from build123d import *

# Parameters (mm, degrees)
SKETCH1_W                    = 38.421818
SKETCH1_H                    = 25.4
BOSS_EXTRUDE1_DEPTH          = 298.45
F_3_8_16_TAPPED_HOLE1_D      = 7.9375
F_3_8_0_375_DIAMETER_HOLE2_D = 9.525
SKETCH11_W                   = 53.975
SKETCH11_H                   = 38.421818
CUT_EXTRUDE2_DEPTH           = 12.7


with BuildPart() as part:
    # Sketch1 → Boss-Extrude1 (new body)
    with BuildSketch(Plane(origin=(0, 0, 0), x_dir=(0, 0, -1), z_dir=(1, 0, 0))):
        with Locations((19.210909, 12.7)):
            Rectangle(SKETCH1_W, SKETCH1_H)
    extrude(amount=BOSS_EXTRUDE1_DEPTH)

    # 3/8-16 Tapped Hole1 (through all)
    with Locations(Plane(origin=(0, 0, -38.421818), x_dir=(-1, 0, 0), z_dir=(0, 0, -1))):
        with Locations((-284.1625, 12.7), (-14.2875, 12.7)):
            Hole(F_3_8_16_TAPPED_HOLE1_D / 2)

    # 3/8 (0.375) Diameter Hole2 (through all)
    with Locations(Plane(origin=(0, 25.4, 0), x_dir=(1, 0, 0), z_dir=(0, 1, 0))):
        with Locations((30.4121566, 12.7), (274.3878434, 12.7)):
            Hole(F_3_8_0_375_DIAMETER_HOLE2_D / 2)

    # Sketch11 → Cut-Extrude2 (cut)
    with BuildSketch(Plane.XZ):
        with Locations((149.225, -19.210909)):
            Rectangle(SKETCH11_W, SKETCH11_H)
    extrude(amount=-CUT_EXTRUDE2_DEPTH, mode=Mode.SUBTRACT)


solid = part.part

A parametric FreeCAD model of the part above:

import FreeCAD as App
import Part
import Sketcher

V = App.Vector
Q = App.Units.Quantity


def add_polygon(sketch, points):
    """Adds a closed chain of lines whose ends are joined by coincident constraints."""
    first, n = sketch.GeometryCount, len(points)
    for a, b in zip(points, points[1:] + points[:1]):
        sketch.addGeometry(Part.LineSegment(App.Vector(*a, 0), App.Vector(*b, 0)), False)
    for i in range(n):
        sketch.addConstraint(Sketcher.Constraint("Coincident", first + i, 2, first + (i + 1) % n, 1))

doc = App.newDocument("Part")
body = doc.addObject("PartDesign::Body", "Body")

# Sketch on YZ plane
sketch1 = body.newObject("Sketcher::SketchObject", "Sketch")
sketch1.AttachmentSupport = (doc.getObject("YZ_Plane"), [""])
sketch1.MapMode = "FlatFace"
add_polygon(sketch1, [(25, 0), (0, 0), (0, -38), (25, -38)])  # lines 0-3
sketch1.addConstraint([
    Sketcher.Constraint("Horizontal", 0),
    Sketcher.Constraint("Vertical", 1),
    Sketcher.Constraint("Horizontal", 2),
    Sketcher.Constraint("Vertical", 3),
    Sketcher.Constraint("Coincident", 0, 2, -1, 1),
    Sketcher.Constraint("DistanceX", 0, 2, 0, 1, Q("1 in")),
    Sketcher.Constraint("DistanceY", 1, 2, 1, 1, 38.421818),
])
pad1 = body.newObject("PartDesign::Pad", "Pad")
pad1.Profile = sketch1
pad1.Length = Q("11.75 in")

# Sketch on XY plane
sketch2 = body.newObject("Sketcher::SketchObject", "Sketch001")
sketch2.AttachmentSupport = (doc.getObject("XY_Plane"), [""])
sketch2.MapMode = "FlatFace"
sketch2.AttachmentOffset = App.Placement(V(0, 0, -38.421818), App.Rotation())
sketch2.addGeometry([
    Part.Circle(V(284.2, 12.7, 0), V(0, 0, 1), 4),
    Part.Circle(V(14.3, 12.7, 0), V(0, 0, 1), 4),
], False)
sketch2.addConstraint([
    Sketcher.Constraint("Equal", 0, 1),
    Sketcher.Constraint("Horizontal", 0, 3, 1, 3),
    Sketcher.Constraint("Diameter", 0, Q("0.3125 in")),
    Sketcher.Constraint("DistanceY", -1, 1, 0, 3, Q("0.5 in")),
    Sketcher.Constraint("DistanceX", -1, 1, 0, 3, Q("11.1875 in")),
    Sketcher.Constraint("DistanceX", -1, 1, 1, 3, Q("0.5625 in")),
])
doc.recompute()
hole = body.newObject("PartDesign::Hole", "Hole")
hole.Profile = sketch2
hole.ThreadType = "None"
hole.Diameter = Q("0.3125 in")
hole.DepthType = "ThroughAll"
hole.Reversed = True

# Sketch on XZ plane
sketch3 = body.newObject("Sketcher::SketchObject", "Sketch002")
sketch3.AttachmentSupport = (doc.getObject("XZ_Plane"), [""])
sketch3.MapMode = "FlatFace"
sketch3.AttachmentOffset = App.Placement(V(0, 0, -1 * 25.4), App.Rotation())
sketch3.addGeometry([
    Part.Circle(V(30.4, -12.7, 0), V(0, 0, 1), 4.8),
    Part.Circle(V(274.4, -12.7, 0), V(0, 0, 1), 4.8),
], False)
sketch3.addConstraint([
    Sketcher.Constraint("Equal", 0, 1),
    Sketcher.Constraint("Horizontal", 0, 3, 1, 3),
    Sketcher.Constraint("Diameter", 0, Q("0.375 in")),
    Sketcher.Constraint("DistanceY", 0, 3, -1, 1, Q("0.5 in")),
    Sketcher.Constraint("DistanceX", -1, 1, 0, 3, 30.412157),
    Sketcher.Constraint("DistanceX", -1, 1, 1, 3, 274.387843),
])
doc.recompute()
hole2 = body.newObject("PartDesign::Hole", "Hole001")
hole2.Profile = sketch3
hole2.ThreadType = "None"
hole2.Diameter = Q("0.375 in")
hole2.DepthType = "ThroughAll"
hole2.Reversed = True

# Sketch on XZ plane
sketch4 = body.newObject("Sketcher::SketchObject", "Sketch003")
sketch4.AttachmentSupport = (doc.getObject("XZ_Plane"), [""])
sketch4.MapMode = "FlatFace"
add_polygon(sketch4, [(122, 0), (122, -38), (176, -38), (176, 0)])  # lines 0-3
sketch4.addConstraint([
    Sketcher.Constraint("Vertical", 0),
    Sketcher.Constraint("Horizontal", 1),
    Sketcher.Constraint("Vertical", 2),
    Sketcher.Constraint("Horizontal", 3),
    Sketcher.Constraint("PointOnObject", 2, 2, -1),
    Sketcher.Constraint("DistanceX", 1, 1, 1, 2, Q("2.125 in")),
    Sketcher.Constraint("DistanceX", -1, 1, 0, 2, Q("4.8125 in")),
    Sketcher.Constraint("DistanceY", 0, 2, 0, 1, 38.421818),
])
pocket1 = body.newObject("PartDesign::Pocket", "Pocket")
pocket1.Profile = sketch4
pocket1.Length = Q("0.5 in")

doc.recompute()
